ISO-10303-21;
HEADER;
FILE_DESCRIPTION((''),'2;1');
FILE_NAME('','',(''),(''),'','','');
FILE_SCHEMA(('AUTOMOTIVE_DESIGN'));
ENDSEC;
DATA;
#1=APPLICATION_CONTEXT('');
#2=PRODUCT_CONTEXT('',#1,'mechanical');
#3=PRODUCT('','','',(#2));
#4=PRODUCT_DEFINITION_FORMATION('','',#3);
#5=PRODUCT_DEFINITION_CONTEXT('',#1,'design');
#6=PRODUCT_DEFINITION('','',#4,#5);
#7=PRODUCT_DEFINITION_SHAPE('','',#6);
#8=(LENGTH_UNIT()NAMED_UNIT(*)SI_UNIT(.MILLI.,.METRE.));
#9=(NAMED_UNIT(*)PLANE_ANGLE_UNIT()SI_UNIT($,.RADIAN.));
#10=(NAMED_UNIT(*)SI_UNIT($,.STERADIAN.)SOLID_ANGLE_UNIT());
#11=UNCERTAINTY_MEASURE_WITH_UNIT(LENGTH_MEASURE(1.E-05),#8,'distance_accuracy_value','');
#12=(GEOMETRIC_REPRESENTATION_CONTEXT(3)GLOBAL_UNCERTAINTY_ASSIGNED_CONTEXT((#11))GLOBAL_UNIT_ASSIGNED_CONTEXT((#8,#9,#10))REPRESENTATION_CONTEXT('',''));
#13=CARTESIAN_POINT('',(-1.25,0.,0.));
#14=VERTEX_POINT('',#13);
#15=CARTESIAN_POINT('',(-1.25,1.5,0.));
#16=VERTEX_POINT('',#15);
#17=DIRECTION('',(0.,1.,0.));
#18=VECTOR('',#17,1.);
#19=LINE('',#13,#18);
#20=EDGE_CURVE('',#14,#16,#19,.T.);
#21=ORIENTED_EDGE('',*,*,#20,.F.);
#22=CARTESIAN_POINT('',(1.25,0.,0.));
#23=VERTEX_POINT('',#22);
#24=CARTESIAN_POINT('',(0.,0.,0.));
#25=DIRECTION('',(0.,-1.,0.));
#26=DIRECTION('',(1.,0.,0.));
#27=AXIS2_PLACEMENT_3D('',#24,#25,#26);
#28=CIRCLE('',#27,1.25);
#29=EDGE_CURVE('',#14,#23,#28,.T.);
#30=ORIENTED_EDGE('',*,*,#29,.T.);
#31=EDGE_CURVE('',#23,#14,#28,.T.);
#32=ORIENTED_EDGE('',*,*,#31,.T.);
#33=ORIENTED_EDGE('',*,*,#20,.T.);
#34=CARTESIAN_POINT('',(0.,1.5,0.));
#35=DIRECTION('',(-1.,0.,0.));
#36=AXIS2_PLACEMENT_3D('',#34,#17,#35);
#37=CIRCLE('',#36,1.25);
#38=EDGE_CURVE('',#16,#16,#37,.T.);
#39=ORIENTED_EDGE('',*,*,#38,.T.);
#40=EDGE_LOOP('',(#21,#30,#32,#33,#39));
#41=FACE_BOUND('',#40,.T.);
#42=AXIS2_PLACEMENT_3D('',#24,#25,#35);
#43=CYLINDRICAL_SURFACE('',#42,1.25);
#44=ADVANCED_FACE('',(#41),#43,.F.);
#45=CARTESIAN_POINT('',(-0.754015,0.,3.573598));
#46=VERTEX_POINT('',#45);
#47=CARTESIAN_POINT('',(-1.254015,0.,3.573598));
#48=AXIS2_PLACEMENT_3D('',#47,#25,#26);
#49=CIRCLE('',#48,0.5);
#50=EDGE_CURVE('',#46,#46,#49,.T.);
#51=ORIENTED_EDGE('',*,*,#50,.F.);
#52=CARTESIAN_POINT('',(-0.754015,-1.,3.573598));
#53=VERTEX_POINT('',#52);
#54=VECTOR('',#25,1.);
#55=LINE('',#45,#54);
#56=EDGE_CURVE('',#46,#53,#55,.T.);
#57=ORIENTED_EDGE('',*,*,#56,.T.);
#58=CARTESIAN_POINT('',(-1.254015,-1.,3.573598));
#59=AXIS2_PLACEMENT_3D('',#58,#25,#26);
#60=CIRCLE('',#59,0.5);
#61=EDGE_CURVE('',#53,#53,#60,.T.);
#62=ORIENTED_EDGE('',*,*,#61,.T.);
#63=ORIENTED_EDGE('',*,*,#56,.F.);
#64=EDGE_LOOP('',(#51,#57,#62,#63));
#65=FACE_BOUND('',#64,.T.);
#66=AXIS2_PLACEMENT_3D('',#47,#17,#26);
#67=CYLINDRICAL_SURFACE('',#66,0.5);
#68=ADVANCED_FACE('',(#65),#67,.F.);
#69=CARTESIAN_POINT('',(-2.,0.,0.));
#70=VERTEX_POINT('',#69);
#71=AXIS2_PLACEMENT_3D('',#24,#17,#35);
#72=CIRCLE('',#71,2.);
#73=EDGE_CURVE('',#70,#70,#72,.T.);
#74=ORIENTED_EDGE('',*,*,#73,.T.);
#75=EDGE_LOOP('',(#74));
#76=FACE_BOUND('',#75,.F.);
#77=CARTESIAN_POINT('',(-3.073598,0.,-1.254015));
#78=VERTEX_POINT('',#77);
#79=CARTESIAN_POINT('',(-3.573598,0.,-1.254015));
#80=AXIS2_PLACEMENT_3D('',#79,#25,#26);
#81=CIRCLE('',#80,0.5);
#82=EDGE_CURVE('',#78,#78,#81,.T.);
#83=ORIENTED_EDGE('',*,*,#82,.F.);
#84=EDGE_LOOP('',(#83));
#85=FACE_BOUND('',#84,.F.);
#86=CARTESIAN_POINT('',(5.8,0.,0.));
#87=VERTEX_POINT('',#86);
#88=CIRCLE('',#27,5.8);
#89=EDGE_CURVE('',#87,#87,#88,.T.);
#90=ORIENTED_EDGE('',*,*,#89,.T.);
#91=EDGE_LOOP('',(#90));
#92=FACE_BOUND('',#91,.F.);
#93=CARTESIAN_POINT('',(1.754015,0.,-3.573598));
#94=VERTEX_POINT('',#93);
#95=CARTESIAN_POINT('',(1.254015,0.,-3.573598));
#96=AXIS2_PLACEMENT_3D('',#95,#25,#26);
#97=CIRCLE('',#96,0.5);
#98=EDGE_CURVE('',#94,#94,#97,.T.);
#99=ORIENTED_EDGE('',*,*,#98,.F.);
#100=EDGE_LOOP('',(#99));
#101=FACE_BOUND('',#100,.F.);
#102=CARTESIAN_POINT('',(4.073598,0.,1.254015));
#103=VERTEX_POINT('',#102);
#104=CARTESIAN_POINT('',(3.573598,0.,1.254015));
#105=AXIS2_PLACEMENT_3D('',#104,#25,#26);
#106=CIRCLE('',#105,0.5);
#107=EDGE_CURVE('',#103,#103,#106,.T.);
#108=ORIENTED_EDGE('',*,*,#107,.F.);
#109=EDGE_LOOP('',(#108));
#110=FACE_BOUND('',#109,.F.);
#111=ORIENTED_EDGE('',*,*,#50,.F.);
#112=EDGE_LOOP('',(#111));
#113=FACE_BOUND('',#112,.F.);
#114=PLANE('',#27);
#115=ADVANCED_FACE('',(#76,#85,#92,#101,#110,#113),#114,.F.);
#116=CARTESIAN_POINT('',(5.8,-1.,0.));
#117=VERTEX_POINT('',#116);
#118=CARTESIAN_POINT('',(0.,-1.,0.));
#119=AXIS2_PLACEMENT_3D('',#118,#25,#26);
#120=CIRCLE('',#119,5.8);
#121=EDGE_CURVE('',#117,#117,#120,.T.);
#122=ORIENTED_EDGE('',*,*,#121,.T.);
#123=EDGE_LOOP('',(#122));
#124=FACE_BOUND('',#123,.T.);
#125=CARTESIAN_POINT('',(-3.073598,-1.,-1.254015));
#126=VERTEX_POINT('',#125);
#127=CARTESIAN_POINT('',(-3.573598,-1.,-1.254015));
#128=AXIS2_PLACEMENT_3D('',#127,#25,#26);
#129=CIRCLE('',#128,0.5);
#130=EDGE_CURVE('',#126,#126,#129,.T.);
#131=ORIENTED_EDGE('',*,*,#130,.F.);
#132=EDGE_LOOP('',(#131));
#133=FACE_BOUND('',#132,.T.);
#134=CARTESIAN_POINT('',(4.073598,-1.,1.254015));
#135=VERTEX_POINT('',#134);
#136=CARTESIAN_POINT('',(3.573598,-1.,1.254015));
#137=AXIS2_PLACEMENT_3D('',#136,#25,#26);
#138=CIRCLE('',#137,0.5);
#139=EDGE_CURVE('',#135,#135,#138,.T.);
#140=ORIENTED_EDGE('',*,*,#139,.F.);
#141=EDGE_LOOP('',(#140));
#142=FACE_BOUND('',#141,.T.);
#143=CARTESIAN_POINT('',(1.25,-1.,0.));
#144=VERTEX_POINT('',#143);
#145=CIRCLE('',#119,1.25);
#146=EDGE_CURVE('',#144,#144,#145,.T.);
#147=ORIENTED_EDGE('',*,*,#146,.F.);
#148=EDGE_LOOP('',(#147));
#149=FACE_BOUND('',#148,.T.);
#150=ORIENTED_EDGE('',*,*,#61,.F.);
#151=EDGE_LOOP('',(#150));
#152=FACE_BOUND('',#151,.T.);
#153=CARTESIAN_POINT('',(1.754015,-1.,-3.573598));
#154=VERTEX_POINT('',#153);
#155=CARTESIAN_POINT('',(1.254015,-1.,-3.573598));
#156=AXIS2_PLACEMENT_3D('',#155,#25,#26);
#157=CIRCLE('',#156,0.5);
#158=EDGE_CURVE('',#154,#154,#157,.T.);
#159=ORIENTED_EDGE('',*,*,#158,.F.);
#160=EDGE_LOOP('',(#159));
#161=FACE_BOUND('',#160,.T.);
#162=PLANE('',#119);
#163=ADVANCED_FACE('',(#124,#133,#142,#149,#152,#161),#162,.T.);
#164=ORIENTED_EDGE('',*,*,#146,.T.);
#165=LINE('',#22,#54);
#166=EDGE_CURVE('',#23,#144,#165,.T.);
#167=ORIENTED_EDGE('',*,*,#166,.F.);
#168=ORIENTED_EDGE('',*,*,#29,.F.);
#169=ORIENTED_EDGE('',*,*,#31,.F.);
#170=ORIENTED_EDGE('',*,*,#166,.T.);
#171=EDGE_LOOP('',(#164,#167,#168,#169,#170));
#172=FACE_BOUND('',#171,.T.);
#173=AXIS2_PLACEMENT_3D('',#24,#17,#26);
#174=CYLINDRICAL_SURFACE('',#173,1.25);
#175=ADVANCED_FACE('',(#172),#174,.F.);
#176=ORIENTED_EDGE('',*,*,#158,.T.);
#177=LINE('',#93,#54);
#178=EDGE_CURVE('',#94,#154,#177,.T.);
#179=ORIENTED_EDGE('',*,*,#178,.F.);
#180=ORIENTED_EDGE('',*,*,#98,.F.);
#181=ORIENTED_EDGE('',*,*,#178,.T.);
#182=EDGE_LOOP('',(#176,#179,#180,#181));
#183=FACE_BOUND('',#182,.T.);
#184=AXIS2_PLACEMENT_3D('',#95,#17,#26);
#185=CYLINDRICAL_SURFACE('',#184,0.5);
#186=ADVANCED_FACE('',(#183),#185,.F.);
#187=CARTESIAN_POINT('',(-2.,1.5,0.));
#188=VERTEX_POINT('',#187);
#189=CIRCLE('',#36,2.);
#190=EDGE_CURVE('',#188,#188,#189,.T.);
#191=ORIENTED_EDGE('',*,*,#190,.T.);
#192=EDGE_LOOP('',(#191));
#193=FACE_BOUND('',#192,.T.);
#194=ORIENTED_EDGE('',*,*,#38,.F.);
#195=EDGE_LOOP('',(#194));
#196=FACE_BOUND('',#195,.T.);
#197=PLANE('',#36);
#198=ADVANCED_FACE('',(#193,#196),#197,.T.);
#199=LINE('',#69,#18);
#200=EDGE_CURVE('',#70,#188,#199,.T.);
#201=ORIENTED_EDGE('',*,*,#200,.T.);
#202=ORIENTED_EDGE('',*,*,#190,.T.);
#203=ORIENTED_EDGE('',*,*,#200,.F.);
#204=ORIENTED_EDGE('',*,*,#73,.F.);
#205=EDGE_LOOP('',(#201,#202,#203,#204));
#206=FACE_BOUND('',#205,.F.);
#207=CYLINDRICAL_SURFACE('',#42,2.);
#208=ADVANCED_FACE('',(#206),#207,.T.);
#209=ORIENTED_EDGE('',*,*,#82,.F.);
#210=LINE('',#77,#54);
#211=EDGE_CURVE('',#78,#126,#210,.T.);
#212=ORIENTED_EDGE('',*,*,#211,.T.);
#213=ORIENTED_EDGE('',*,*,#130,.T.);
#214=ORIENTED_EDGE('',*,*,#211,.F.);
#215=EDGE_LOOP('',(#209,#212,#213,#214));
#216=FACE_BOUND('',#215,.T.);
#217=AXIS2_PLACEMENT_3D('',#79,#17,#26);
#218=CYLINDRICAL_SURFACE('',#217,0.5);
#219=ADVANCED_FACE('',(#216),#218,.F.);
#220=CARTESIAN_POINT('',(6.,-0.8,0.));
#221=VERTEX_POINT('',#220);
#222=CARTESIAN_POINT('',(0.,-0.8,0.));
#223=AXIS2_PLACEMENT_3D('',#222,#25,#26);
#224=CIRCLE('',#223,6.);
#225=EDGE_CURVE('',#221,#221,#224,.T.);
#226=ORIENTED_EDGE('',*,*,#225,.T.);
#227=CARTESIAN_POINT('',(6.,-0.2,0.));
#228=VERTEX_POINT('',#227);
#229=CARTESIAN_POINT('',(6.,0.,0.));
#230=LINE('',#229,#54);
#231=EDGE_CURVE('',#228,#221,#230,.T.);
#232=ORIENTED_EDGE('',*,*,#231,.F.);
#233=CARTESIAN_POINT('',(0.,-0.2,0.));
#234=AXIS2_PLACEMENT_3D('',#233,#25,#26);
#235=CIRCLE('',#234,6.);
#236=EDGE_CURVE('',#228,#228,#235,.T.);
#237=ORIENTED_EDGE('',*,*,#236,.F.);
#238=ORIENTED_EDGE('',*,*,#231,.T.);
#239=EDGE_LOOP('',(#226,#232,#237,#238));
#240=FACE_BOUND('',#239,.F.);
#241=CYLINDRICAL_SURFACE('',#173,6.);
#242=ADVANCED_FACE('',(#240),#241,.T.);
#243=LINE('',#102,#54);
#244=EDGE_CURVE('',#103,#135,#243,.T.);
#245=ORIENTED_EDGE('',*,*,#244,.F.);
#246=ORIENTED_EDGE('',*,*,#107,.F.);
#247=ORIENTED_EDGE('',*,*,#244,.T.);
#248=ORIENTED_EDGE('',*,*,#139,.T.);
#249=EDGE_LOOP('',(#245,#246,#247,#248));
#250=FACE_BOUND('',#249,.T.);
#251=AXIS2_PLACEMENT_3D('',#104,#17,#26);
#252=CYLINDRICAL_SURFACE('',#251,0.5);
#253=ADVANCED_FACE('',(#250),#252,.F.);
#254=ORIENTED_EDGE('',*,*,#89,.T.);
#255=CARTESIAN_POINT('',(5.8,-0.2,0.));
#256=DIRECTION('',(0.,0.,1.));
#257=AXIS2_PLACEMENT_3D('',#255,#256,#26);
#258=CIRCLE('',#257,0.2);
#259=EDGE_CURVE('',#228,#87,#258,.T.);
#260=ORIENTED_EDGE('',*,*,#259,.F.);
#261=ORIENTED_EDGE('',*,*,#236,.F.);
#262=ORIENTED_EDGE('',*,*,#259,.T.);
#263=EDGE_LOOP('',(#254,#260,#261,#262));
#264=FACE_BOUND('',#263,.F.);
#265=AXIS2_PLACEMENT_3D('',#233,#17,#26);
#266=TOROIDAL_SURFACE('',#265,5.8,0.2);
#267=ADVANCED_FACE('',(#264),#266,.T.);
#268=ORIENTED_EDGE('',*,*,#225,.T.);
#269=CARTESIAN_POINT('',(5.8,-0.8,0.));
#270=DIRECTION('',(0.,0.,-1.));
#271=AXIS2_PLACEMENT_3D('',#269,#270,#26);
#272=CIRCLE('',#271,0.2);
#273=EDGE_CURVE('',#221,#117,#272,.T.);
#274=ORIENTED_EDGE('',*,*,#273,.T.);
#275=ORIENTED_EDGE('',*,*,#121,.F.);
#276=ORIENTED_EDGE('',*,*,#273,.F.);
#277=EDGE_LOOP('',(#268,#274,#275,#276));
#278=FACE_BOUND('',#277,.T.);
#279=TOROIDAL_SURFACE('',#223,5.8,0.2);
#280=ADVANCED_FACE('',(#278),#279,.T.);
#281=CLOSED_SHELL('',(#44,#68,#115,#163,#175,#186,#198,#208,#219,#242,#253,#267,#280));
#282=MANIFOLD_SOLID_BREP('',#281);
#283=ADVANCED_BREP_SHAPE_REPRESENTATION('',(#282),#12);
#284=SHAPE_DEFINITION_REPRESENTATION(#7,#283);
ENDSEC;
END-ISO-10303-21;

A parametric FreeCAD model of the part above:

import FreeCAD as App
import Part
import Sketcher
Q = App.Units.Quantity


def edges_at(feature, points):
    """Names of the edges that pass closest to the given points."""
    edges = feature.Shape.Edges
    near = lambda p: min(range(len(edges)), key=lambda i: edges[i].distToShape(Part.Vertex(*p))[0])
    return sorted({f"Edge{near(p) + 1}" for p in points})

doc = App.newDocument("Part")
body = doc.addObject("PartDesign::Body", "Body")

# Sketch on XZ plane
sketch1 = body.newObject("Sketcher::SketchObject", "Sketch")
sketch1.AttachmentSupport = (doc.getObject("XZ_Plane"), [""])
sketch1.MapMode = "FlatFace"
sketch1.addGeometry([
    Part.Circle(App.Vector(0, 0, 0), App.Vector(0, 0, 1), 6),  # 0
    Part.Circle(App.Vector(-3.6, -1.3, 0), App.Vector(0, 0, 1), 0.5),  # 1
    Part.Circle(App.Vector(1.3, -3.6, 0), App.Vector(0, 0, 1), 0.5),  # 2
    Part.Circle(App.Vector(-1.3, 3.6, 0), App.Vector(0, 0, 1), 0.5),  # 3
    Part.Circle(App.Vector(0, 0, 0), App.Vector(0, 0, 1), 1.2),  # 4
    Part.Circle(App.Vector(3.6, 1.3, 0), App.Vector(0, 0, 1), 0.5),  # 5
], False)
sketch1.addConstraint([
    Sketcher.Constraint("Coincident", 0, 3, -1, 1),
    Sketcher.Constraint("Coincident", 4, 3, -1, 1),
    Sketcher.Constraint("Equal", 1, 2),
    Sketcher.Constraint("Equal", 2, 3),
    Sketcher.Constraint("Equal", 3, 5),
    Sketcher.Constraint("Symmetric", 2, 3, 3, 3, -1, 1),
    Sketcher.Constraint("Symmetric", 1, 3, 5, 3, -1, 1),
    Sketcher.Constraint("Diameter", 0, Q("12 mm")),
    Sketcher.Constraint("Diameter", 1, Q("1 mm")),
    Sketcher.Constraint("Diameter", 4, Q("2.5 mm")),
    Sketcher.Constraint("DistanceX", 1, 3, -1, 1, Q("3.573598 mm")),
    Sketcher.Constraint("DistanceY", 2, 3, -1, 1, Q("3.573598 mm")),
    Sketcher.Constraint("DistanceX", 3, 3, 2, 3, Q("2.50803 mm")),
    Sketcher.Constraint("DistanceY", 1, 3, 5, 3, Q("2.50803 mm")),
])
pad1 = body.newObject("PartDesign::Pad", "Pad")
pad1.Profile = sketch1
pad1.Length = 1
doc.recompute()

fillet = body.newObject("PartDesign::Fillet", "Fillet")
fillet.Base = (pad1, edges_at(pad1, [(-6, 0, 0), (-6, -1, 0)]))
fillet.Radius = 0.2

# Sketch on XZ plane
sketch2 = body.newObject("Sketcher::SketchObject", "Sketch001")
sketch2.AttachmentSupport = (doc.getObject("XZ_Plane"), [""])
sketch2.MapMode = "FlatFace"
sketch2.addGeometry([
    Part.Circle(App.Vector(0, 0, 0), App.Vector(0, 0, 1), 2),
    Part.Circle(App.Vector(0, 0, 0), App.Vector(0, 0, 1), 1.2),
], False)
sketch2.addConstraint([
    Sketcher.Constraint("Coincident", 0, 3, -1, 1),
    Sketcher.Constraint("Coincident", 1, 3, -1, 1),
    Sketcher.Constraint("Diameter", 0, Q("4 mm")),
    Sketcher.Constraint("Diameter", 1, Q("2.5 mm")),
])
pad2 = body.newObject("PartDesign::Pad", "Pad001")
pad2.Profile = sketch2
pad2.Length = 1.5
pad2.Reversed = True

doc.recompute()
